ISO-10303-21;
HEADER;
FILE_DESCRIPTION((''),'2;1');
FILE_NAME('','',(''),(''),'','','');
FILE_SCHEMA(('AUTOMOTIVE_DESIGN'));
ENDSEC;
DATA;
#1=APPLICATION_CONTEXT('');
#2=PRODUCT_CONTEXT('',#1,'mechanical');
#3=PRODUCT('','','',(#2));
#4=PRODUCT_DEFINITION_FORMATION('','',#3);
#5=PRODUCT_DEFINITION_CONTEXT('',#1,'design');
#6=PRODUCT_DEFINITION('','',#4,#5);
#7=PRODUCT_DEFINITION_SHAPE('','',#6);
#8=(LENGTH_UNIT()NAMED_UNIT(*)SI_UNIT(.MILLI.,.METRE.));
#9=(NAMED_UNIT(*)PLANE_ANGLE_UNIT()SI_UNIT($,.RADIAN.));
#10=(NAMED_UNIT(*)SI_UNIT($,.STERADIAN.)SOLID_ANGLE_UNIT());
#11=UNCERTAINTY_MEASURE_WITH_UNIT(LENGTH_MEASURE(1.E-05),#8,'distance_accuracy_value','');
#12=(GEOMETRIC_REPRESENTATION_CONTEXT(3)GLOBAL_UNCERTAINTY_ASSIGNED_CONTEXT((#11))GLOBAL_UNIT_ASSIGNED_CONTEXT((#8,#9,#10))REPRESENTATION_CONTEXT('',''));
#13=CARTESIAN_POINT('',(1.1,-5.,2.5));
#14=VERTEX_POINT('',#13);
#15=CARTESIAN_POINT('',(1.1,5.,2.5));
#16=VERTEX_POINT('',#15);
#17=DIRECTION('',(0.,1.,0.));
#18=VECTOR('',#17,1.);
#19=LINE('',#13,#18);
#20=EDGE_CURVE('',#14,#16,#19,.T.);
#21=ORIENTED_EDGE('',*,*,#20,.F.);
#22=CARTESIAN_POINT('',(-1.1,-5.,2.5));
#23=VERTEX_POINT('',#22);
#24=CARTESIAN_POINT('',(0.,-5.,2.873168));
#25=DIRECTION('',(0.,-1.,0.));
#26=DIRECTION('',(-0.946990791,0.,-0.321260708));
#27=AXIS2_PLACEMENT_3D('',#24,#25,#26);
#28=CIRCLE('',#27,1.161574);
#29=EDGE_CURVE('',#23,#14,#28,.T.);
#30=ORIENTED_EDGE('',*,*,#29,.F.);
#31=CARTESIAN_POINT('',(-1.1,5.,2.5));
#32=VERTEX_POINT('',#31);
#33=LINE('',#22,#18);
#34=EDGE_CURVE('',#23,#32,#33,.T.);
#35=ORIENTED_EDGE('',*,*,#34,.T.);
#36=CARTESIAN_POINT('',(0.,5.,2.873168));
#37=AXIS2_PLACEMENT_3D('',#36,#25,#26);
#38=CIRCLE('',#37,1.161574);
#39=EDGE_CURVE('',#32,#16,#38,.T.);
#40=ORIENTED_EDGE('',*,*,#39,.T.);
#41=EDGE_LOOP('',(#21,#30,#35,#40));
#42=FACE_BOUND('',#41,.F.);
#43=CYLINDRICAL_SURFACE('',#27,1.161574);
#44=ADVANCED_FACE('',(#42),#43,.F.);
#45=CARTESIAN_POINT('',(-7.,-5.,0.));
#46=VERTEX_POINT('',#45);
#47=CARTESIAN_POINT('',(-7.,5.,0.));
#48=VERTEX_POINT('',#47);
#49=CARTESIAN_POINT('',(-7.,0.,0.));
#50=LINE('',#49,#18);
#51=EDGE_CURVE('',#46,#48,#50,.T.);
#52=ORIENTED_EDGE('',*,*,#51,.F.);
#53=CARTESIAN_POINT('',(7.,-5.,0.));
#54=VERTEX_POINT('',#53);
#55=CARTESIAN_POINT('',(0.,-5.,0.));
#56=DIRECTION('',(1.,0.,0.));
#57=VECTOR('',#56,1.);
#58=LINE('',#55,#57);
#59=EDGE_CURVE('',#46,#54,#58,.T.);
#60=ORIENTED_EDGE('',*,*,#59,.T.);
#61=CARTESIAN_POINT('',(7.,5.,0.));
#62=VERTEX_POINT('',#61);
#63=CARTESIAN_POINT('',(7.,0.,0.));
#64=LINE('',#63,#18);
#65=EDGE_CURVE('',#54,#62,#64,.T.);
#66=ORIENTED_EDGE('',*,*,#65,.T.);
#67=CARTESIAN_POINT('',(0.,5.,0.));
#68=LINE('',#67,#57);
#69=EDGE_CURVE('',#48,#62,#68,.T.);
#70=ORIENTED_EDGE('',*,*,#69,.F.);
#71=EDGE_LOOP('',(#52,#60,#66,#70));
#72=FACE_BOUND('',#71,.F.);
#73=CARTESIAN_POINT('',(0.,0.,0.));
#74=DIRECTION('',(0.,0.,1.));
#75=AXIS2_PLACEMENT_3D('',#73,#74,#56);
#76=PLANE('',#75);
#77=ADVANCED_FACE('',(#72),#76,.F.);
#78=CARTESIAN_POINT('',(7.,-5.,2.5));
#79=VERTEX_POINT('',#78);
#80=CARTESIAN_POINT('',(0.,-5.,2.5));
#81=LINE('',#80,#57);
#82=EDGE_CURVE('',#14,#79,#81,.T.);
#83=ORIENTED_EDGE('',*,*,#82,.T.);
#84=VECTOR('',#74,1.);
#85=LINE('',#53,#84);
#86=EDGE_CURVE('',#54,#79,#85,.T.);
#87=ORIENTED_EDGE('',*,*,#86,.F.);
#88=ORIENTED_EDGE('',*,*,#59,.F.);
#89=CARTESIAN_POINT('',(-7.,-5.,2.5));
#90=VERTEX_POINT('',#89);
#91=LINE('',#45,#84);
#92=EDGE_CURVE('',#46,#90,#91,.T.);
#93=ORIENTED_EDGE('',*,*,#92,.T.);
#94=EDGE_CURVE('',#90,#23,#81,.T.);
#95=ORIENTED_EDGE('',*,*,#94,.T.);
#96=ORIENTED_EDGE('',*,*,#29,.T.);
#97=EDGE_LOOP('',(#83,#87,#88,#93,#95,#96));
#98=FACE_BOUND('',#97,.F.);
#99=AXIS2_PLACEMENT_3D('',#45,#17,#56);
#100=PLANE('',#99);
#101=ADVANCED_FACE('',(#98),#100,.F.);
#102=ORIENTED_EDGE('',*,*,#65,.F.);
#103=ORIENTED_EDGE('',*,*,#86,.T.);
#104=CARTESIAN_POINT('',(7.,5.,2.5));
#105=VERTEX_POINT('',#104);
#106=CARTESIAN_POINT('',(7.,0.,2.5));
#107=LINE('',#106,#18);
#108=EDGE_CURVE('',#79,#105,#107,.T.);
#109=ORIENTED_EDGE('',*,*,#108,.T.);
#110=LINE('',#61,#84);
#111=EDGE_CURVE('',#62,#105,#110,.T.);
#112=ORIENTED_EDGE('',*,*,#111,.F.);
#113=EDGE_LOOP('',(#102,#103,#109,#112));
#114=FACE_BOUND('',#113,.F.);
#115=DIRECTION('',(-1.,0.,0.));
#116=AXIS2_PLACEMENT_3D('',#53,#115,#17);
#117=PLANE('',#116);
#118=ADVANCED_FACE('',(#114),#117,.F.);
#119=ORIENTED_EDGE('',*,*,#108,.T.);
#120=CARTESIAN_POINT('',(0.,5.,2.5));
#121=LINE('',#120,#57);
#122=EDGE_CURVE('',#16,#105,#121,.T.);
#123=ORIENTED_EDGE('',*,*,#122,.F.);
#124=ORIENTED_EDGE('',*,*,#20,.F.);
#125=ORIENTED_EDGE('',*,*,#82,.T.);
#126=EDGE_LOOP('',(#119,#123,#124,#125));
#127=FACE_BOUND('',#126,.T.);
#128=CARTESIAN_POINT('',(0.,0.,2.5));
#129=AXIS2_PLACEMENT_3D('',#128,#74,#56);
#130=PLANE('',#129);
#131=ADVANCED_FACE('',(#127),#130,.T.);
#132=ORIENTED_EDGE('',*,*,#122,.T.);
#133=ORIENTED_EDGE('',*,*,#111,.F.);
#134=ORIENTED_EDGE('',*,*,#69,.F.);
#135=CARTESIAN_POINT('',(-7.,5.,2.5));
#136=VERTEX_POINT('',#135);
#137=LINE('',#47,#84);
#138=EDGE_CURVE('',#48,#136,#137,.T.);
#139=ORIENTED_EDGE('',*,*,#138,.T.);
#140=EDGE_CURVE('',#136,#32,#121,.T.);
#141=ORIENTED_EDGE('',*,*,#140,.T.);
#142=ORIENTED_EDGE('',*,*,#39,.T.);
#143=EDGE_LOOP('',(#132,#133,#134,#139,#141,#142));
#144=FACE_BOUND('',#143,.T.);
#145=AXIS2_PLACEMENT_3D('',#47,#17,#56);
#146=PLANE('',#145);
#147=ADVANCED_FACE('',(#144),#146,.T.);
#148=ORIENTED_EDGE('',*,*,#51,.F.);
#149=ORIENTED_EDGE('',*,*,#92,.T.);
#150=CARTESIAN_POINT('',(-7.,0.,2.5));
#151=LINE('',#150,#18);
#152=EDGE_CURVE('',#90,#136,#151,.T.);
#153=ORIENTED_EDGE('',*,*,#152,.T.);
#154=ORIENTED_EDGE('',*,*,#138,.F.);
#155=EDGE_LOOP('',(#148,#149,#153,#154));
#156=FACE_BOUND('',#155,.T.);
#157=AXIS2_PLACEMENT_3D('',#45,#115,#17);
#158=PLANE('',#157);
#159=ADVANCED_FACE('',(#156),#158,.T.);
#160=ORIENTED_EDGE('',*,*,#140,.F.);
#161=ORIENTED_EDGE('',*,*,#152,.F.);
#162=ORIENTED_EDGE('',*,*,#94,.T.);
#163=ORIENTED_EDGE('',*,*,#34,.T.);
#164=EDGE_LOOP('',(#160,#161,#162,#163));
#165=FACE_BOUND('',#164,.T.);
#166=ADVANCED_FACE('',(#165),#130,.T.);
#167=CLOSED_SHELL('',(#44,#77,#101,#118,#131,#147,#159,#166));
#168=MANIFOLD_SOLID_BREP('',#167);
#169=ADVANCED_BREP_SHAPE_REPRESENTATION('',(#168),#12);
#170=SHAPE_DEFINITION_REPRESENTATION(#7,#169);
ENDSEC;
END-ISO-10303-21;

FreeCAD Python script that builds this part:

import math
import FreeCAD as App
import Part
import Sketcher

V = App.Vector
Q = App.Units.Quantity


def add_polygon(sketch, points):
    """Adds a closed chain of lines whose ends are joined by coincident constraints."""
    first, n = sketch.GeometryCount, len(points)
    for a, b in zip(points, points[1:] + points[:1]):
        sketch.addGeometry(Part.LineSegment(App.Vector(*a, 0), App.Vector(*b, 0)), False)
    for i in range(n):
        sketch.addConstraint(Sketcher.Constraint("Coincident", first + i, 2, first + (i + 1) % n, 1))

doc = App.newDocument("Part")
body = doc.addObject("PartDesign::Body", "Body")

# Sketch on XY plane
sketch1 = body.newObject("Sketcher::SketchObject", "Sketch")
sketch1.AttachmentSupport = (doc.getObject("XY_Plane"), [""])
sketch1.MapMode = "FlatFace"
add_polygon(sketch1, [(-7, 5), (-7, -5), (7, -5), (7, 5)])  # lines 0-3
sketch1.addConstraint(Sketcher.Constraint("Vertical", 0))
sketch1.addConstraint(Sketcher.Constraint("Horizontal", 1))
sketch1.addConstraint(Sketcher.Constraint("Vertical", 2))
sketch1.addConstraint(Sketcher.Constraint("Horizontal", 3))
sketch1.addConstraint(Sketcher.Constraint("Symmetric", 0, 2, 2, 2, -1, 1))
sketch1.addConstraint(Sketcher.Constraint("DistanceX", 1, 1, 1, 2, Q("14 mm")))
sketch1.addConstraint(Sketcher.Constraint("DistanceY", 0, 2, 0, 1, Q("10 mm")))
pad1 = body.newObject("PartDesign::Pad", "Pad")
pad1.Profile = sketch1
pad1.Length = 2.5

# Sketch on XZ plane
sketch2 = body.newObject("Sketcher::SketchObject", "Sketch001")
sketch2.AttachmentSupport = (doc.getObject("XZ_Plane"), [""])
sketch2.MapMode = "FlatFace"
sketch2.AttachmentOffset = App.Placement(V(0, 0, 5), App.Rotation())
sketch2.addGeometry(Part.LineSegment(V(1.1, 2.5, 0), V(-1.1, 2.5, 0)), False)
sketch2.addGeometry(Part.ArcOfCircle(Part.Circle(V(0, 2.9, 0), V(0, 0, 1), 1.2), math.radians(-161), math.radians(-19)), False)
sketch2.addConstraint(Sketcher.Constraint("Coincident", 0, 1, 1, 2))
sketch2.addConstraint(Sketcher.Constraint("Coincident", 1, 1, 0, 2))
sketch2.addConstraint(Sketcher.Constraint("Horizontal", 0))
sketch2.addConstraint(Sketcher.Constraint("PointOnObject", 1, 3, -2))
sketch2.addConstraint(Sketcher.Constraint("DistanceX", 0, 2, 0, 1, Q("2.2 mm")))
sketch2.addConstraint(Sketcher.Constraint("DistanceY", -1, 1, 0, 1, Q("2.5 mm")))
sketch2.addConstraint(Sketcher.Constraint("Radius", 1, Q("1.161574 mm")))
pocket1 = body.newObject("PartDesign::Pocket", "Pocket")
pocket1.Profile = sketch2
pocket1.Type = "ThroughAll"

doc.recompute()
